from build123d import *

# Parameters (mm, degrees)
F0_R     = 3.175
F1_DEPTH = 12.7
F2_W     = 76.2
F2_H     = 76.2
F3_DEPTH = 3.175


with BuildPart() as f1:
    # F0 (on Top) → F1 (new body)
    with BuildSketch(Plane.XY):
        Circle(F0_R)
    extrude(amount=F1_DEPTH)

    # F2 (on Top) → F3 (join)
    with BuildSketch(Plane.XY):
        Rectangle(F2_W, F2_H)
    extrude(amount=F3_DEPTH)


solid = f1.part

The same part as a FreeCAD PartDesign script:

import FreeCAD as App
import Part
import Sketcher
Q = App.Units.Quantity


def add_polygon(sketch, points):
    """Adds a closed chain of lines whose ends are joined by coincident constraints."""
    first, n = sketch.GeometryCount, len(points)
    for a, b in zip(points, points[1:] + points[:1]):
        sketch.addGeometry(Part.LineSegment(App.Vector(*a, 0), App.Vector(*b, 0)), False)
    for i in range(n):
        sketch.addConstraint(Sketcher.Constraint("Coincident", first + i, 2, first + (i + 1) % n, 1))

doc = App.newDocument("Part")
body = doc.addObject("PartDesign::Body", "Body")

sketch1 = body.newObject("Sketcher::SketchObject", "Sketch")
sketch1.AttachmentSupport = (doc.getObject("XY_Plane"), [""])
sketch1.MapMode = "FlatFace"
sketch1.addGeometry(Part.Circle(App.Vector(0, 0, 0), App.Vector(0, 0, 1), 3.2), False)
sketch1.addConstraint([
    Sketcher.Constraint("Coincident", 0, 3, -1, 1),
    Sketcher.Constraint("Diameter", 0, Q("0.25 in")),
])
pad1 = body.newObject("PartDesign::Pad", "Pad")
pad1.Profile = sketch1
pad1.Length = Q("0.5 in")

sketch2 = body.newObject("Sketcher::SketchObject", "Sketch001")
sketch2.AttachmentSupport = (doc.getObject("XY_Plane"), [""])
sketch2.MapMode = "FlatFace"
add_polygon(sketch2, [(-38, 38), (-38, -38), (38, -38), (38, 38)])
sketch2.addConstraint([
    Sketcher.Constraint("Vertical", 0),
    Sketcher.Constraint("Horizontal", 1),
    Sketcher.Constraint("Vertical", 2),
    Sketcher.Constraint("Horizontal", 3),
    Sketcher.Constraint("Symmetric", 0, 2, 2, 2, -1, 1),
    Sketcher.Constraint("Equal", 3, 0),
    Sketcher.Constraint("DistanceX", 1, 1, 1, 2, Q("3 in")),
])
pad2 = body.newObject("PartDesign::Pad", "Pad001")
pad2.Profile = sketch2
pad2.Length = Q("0.125 in")

doc.recompute()
